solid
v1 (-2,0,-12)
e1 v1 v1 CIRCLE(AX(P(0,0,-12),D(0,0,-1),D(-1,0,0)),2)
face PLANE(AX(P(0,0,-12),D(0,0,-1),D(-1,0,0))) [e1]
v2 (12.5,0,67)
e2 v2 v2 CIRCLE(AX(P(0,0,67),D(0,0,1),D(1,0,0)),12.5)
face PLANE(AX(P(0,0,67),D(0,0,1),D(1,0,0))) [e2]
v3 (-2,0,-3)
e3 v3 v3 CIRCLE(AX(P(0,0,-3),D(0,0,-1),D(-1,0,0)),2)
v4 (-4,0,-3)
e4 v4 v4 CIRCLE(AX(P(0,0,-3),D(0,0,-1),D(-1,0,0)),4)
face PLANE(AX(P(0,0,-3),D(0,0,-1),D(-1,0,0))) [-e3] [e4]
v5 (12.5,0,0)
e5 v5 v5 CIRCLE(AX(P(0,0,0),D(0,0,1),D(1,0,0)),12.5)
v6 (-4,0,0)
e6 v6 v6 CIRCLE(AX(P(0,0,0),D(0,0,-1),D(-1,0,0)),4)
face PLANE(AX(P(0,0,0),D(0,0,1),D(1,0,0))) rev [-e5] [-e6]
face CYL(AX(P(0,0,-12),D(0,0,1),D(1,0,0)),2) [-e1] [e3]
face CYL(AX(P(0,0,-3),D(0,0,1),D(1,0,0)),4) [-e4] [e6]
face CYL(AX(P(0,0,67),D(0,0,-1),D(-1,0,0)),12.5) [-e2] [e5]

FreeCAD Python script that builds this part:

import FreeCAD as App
import Part
import Sketcher

doc = App.newDocument("Part")
body = doc.addObject("PartDesign::Body", "Body")

sketch1 = doc.addObject("Sketcher::SketchObject", "Sketch")
body.addObject(sketch1)
sketch1.AttachmentSupport = (doc.XY_Plane, [""])
sketch1.MapMode = "FlatFace"
sketch1.addGeometry(Part.Circle(App.Vector(0, 0, 0), App.Vector(0, 0, 1), 12.5), False)
sketch1.addConstraint(Sketcher.Constraint("Coincident", 0, 3, -1, 1))
sketch1.addConstraint(Sketcher.Constraint("Diameter", 0, 25.0))
pad1 = doc.addObject("PartDesign::Pad", "Pad")
body.addObject(pad1)
pad1.Profile = sketch1
pad1.Length = 67

sketch2 = doc.addObject("Sketcher::SketchObject", "Sketch001")
body.addObject(sketch2)
sketch2.AttachmentSupport = (doc.XY_Plane, [""])
sketch2.MapMode = "FlatFace"
sketch2.addGeometry(Part.Circle(App.Vector(0, 0, 0), App.Vector(0, 0, 1), 4), False)
sketch2.addConstraint(Sketcher.Constraint("Coincident", 0, 3, -1, 1))
sketch2.addConstraint(Sketcher.Constraint("Diameter", 0, 8.0))
pad2 = doc.addObject("PartDesign::Pad", "Pad001")
body.addObject(pad2)
pad2.Profile = sketch2
pad2.Length = 3
pad2.Reversed = True

sketch3 = doc.addObject("Sketcher::SketchObject", "Sketch002")
body.addObject(sketch3)
sketch3.AttachmentSupport = (doc.XY_Plane, [""])
sketch3.MapMode = "FlatFace"
sketch3.AttachmentOffset = App.Placement(App.Vector(0, 0, -3), App.Rotation())
sketch3.addGeometry(Part.Circle(App.Vector(0, 0, 0), App.Vector(0, 0, 1), 2), False)
sketch3.addConstraint(Sketcher.Constraint("Coincident", 0, 3, -1, 1))
sketch3.addConstraint(Sketcher.Constraint("Diameter", 0, 4.0))
pad3 = doc.addObject("PartDesign::Pad", "Pad002")
body.addObject(pad3)
pad3.Profile = sketch3
pad3.Length = 9
pad3.Reversed = True

doc.recompute()
